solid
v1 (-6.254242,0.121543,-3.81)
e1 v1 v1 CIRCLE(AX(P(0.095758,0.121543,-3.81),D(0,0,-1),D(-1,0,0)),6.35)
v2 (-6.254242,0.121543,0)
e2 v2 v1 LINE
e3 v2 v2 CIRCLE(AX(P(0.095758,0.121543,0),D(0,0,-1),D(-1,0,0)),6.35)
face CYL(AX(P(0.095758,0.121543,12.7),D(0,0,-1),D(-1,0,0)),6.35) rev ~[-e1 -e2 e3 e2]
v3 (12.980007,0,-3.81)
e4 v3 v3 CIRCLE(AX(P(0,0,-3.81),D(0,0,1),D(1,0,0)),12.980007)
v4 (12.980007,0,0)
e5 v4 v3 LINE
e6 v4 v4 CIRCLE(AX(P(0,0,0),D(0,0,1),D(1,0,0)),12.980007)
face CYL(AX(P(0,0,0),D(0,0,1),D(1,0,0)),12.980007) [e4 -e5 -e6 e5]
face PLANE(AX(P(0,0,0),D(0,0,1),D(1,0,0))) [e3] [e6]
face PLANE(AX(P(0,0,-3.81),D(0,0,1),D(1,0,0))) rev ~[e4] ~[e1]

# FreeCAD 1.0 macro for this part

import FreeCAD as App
import Part
import Sketcher
from FreeCAD import Vector
Q = App.Units.Quantity

doc = App.newDocument("Part")
body = doc.addObject("PartDesign::Body", "Body")

# Sketch on XY plane
sketch1 = doc.addObject("Sketcher::SketchObject", "Sketch")
body.addObject(sketch1)
sketch1.AttachmentSupport = (doc.XY_Plane, [""])
sketch1.MapMode = "FlatFace"
sketch1.addGeometry(Part.Circle(Vector(0, 0, 0), Vector(0, 0, 1), 13), False)
sketch1.addConstraint([
    Sketcher.Constraint("Coincident", 0, 3, -1, 1),
    Sketcher.Constraint("Diameter", 0, 25.960014),
])
pad1 = doc.addObject("PartDesign::Pad", "Pad")
body.addObject(pad1)
pad1.Profile = sketch1
pad1.Length = Q("0.15 in")
pad1.Reversed = True

# Sketch on XY plane
sketch2 = doc.addObject("Sketcher::SketchObject", "Sketch001")
body.addObject(sketch2)
sketch2.AttachmentSupport = (doc.XY_Plane, [""])
sketch2.MapMode = "FlatFace"
sketch2.addGeometry(Part.Circle(Vector(0, 0, 0), Vector(0, 0, 1), 6), False)
sketch2.addConstraint([
    Sketcher.Constraint("Diameter", 0, Q("0.5 in")),
    Sketcher.Constraint("DistanceX", -1, 1, 0, 3, 0.095758),
    Sketcher.Constraint("DistanceY", -1, 1, 0, 3, 0.121543),
])
doc.recompute()
hole = doc.addObject("PartDesign::Hole", "Hole")
body.addObject(hole)
hole.Profile = sketch2
hole.ThreadType = "None"
hole.Diameter = Q("0.5 in")
hole.DepthType = "Dimension"
hole.Depth = Q("0.5 in")
hole.DrillPoint = "Flat"

doc.recompute()
